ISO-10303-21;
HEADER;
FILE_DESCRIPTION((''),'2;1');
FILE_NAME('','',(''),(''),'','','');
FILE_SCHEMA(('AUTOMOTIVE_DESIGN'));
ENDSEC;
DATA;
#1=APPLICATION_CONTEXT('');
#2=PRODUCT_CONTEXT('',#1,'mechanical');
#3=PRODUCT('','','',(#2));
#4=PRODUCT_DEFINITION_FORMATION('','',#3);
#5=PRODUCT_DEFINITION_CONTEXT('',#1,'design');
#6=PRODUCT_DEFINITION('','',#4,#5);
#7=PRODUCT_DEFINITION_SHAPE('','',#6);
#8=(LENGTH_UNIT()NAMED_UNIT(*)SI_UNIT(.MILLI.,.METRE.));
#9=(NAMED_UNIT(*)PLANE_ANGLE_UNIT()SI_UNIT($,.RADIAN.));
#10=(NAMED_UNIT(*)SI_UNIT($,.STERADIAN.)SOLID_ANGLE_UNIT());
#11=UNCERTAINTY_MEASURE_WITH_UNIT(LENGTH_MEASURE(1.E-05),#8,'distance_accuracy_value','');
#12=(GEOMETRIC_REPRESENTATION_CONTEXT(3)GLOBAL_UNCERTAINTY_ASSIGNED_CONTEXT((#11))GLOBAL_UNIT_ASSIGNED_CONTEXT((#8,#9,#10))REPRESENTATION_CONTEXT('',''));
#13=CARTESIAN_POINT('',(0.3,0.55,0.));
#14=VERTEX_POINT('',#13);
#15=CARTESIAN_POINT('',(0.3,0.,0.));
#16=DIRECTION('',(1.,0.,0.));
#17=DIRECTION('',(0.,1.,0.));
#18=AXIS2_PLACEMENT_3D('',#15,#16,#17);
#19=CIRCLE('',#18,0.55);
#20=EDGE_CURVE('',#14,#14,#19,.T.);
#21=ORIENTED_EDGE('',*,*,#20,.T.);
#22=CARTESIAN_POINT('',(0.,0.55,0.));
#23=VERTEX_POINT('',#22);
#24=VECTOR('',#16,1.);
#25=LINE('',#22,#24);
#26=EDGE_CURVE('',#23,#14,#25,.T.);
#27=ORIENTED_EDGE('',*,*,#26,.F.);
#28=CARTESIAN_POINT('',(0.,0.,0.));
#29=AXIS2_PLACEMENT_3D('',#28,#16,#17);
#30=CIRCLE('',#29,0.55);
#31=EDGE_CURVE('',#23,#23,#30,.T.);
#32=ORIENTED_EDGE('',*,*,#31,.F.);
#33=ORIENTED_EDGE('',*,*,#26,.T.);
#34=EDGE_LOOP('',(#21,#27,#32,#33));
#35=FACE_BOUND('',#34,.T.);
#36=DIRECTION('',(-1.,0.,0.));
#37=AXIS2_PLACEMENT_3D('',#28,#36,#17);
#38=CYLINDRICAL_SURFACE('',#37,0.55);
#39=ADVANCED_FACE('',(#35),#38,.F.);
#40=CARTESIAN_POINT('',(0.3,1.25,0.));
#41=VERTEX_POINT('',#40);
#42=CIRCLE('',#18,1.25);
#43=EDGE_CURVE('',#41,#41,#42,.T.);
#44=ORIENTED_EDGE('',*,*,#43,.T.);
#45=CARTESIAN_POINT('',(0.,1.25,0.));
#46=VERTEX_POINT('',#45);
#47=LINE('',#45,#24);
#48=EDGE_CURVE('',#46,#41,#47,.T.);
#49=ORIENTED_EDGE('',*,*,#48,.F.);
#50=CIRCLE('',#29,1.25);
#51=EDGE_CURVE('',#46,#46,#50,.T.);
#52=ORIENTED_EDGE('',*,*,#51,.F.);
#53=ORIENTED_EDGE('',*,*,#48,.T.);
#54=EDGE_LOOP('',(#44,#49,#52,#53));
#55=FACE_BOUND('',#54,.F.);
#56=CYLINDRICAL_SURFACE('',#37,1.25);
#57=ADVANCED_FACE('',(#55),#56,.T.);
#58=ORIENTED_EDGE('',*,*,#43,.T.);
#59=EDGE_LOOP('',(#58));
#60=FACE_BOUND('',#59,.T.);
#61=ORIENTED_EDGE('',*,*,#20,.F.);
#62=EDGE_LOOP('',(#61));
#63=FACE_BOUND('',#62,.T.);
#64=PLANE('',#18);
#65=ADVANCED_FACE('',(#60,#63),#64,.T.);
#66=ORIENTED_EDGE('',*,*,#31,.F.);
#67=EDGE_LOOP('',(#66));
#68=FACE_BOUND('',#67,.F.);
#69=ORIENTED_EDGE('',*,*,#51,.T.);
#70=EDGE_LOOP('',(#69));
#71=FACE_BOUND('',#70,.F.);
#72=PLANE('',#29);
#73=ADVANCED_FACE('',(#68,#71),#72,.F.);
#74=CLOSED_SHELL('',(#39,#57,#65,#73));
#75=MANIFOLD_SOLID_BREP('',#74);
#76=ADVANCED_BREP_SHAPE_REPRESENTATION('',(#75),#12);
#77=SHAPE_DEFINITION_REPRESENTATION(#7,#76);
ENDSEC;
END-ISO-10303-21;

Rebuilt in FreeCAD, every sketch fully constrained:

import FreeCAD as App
import Part
import Sketcher

doc = App.newDocument("Part")
body = doc.addObject("PartDesign::Body", "Body")

sketch1 = doc.addObject("Sketcher::SketchObject", "Sketch")
body.addObject(sketch1)
sketch1.AttachmentSupport = (doc.YZ_Plane, [""])
sketch1.MapMode = "FlatFace"
sketch1.addGeometry([
    Part.Circle(App.Vector(0, 0, 0), App.Vector(0, 0, 1), 1.2),
    Part.Circle(App.Vector(0, 0, 0), App.Vector(0, 0, 1), 0.6),
], False)
sketch1.addConstraint([
    Sketcher.Constraint("Coincident", 0, 3, -1, 1),
    Sketcher.Constraint("Coincident", 1, 3, -1, 1),
    Sketcher.Constraint("Diameter", 0, 2.5),
    Sketcher.Constraint("Diameter", 1, 1.1),
])
pad1 = doc.addObject("PartDesign::Pad", "Pad")
body.addObject(pad1)
pad1.Profile = sketch1
pad1.Length = 0.3

doc.recompute()
